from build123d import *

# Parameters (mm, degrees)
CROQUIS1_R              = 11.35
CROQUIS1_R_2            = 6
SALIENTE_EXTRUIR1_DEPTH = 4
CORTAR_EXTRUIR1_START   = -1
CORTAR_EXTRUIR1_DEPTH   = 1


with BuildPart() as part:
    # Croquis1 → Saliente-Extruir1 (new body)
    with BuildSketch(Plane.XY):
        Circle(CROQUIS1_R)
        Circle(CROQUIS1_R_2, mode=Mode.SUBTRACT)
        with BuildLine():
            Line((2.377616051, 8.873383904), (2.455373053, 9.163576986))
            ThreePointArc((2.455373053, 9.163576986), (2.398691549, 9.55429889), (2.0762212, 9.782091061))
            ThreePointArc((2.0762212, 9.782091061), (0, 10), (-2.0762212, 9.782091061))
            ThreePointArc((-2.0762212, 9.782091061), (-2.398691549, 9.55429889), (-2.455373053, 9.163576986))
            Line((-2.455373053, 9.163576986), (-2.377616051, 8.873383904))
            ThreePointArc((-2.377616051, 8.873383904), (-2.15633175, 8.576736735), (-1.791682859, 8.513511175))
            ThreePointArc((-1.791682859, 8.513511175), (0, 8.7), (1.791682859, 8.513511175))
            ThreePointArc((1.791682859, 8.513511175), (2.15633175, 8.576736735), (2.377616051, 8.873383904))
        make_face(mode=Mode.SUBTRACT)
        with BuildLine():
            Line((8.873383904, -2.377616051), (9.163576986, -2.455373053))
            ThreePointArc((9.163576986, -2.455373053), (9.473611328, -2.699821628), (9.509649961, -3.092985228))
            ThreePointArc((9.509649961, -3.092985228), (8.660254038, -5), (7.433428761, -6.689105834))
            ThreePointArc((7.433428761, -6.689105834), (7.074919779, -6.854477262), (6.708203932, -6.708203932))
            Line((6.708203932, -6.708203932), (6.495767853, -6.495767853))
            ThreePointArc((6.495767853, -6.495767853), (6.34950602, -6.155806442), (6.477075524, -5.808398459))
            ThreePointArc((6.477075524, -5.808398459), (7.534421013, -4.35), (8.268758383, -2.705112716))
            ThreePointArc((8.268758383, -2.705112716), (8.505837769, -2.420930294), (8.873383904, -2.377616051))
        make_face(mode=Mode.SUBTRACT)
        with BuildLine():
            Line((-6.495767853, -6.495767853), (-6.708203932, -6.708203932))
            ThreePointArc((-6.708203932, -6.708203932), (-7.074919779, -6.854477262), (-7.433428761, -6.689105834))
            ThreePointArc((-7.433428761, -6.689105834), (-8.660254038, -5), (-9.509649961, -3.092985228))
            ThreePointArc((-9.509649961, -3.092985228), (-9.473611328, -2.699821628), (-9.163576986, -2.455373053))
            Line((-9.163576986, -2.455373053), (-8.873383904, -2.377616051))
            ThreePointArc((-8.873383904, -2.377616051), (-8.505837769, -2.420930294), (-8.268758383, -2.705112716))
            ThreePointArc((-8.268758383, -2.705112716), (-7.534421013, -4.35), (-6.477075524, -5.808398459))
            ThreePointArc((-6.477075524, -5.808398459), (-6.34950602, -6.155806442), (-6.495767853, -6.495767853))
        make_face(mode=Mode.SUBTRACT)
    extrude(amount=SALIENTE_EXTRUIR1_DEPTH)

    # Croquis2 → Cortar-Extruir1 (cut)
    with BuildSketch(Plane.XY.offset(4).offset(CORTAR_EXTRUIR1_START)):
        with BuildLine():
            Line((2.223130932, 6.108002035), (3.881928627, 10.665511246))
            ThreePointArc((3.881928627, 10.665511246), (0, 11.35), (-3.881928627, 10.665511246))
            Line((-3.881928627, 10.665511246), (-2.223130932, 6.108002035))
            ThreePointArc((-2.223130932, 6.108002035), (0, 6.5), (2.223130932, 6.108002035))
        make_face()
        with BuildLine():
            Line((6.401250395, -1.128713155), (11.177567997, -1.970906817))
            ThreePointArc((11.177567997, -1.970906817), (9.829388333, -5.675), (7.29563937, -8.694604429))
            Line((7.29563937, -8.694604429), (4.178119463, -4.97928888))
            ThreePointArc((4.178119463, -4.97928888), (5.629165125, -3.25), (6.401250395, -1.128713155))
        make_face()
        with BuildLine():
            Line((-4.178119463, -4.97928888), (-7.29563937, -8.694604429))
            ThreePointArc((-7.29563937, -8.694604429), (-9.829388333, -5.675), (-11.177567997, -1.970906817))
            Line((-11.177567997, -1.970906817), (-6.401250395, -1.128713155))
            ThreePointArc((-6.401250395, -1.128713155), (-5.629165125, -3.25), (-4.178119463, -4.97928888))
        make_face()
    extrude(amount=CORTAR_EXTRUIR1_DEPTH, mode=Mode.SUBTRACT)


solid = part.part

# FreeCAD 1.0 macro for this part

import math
import FreeCAD as App
import Part
import Sketcher
Q = App.Units.Quantity

doc = App.newDocument("Part")
body = doc.addObject("PartDesign::Body", "Body")

sketch1 = body.newObject("Sketcher::SketchObject", "Sketch")
sketch1.AttachmentSupport = (doc.getObject("XY_Plane"), [""])
sketch1.MapMode = "FlatFace"
sketch1.addGeometry(Part.Circle(App.Vector(0, 0, 0), App.Vector(0, 0, 1), 11.35), False)
sketch1.addGeometry(Part.ArcOfCircle(Part.Circle(App.Vector(-6.85, -6.14, 0), App.Vector(0, 0, 1), 0.5), math.radians(-45), math.radians(42)), False)
sketch1.addGeometry(Part.LineSegment(App.Vector(-6.5, -6.5, 0), App.Vector(-6.71, -6.71, 0)), False)
sketch1.addGeometry(Part.ArcOfCircle(Part.Circle(App.Vector(-7.06, -6.35, 0), App.Vector(0, 0, 1), 0.5), math.radians(-138), math.radians(-45)), False)
sketch1.addGeometry(Part.ArcOfCircle(Part.Circle(App.Vector(0, 0, 0), App.Vector(0, 0, 1), 10), math.radians(-162), math.radians(-138)), False)
sketch1.addGeometry(Part.ArcOfCircle(Part.Circle(App.Vector(-9.03, -2.94, 0), App.Vector(0, 0, 1), 0.5), math.radians(105), math.radians(198)), False)
sketch1.addGeometry(Part.LineSegment(App.Vector(-9.16, -2.46, 0), App.Vector(-8.87, -2.38, 0)), False)
sketch1.addGeometry(Part.ArcOfCircle(Part.Circle(App.Vector(-8.74, -2.86, 0), App.Vector(0, 0, 1), 0.5), math.radians(18), math.radians(105)), False)
sketch1.addGeometry(Part.ArcOfCircle(Part.Circle(App.Vector(0, 0, 0), App.Vector(0, 0, 1), 8.7), math.radians(-162), math.radians(-138)), False)
sketch1.addGeometry(Part.ArcOfCircle(Part.Circle(App.Vector(8.74, -2.86, 0), App.Vector(0, 0, 1), 0.5), math.radians(75), math.radians(162)), False)
sketch1.addGeometry(Part.LineSegment(App.Vector(8.87, -2.38, 0), App.Vector(9.16, -2.46, 0)), False)
sketch1.addGeometry(Part.ArcOfCircle(Part.Circle(App.Vector(9.03, -2.94, 0), App.Vector(0, 0, 1), 0.5), math.radians(-18), math.radians(75)), False)
sketch1.addGeometry(Part.ArcOfCircle(Part.Circle(App.Vector(0, 0, 0), App.Vector(0, 0, 1), 10), math.radians(-42), math.radians(-18)), False)
sketch1.addGeometry(Part.ArcOfCircle(Part.Circle(App.Vector(7.06, -6.35, 0), App.Vector(0, 0, 1), 0.5), math.radians(-135), math.radians(-42)), False)
sketch1.addGeometry(Part.LineSegment(App.Vector(6.71, -6.71, 0), App.Vector(6.5, -6.5, 0)), False)
sketch1.addGeometry(Part.ArcOfCircle(Part.Circle(App.Vector(6.85, -6.14, 0), App.Vector(0, 0, 1), 0.5), math.radians(138), math.radians(225)), False)
sketch1.addGeometry(Part.ArcOfCircle(Part.Circle(App.Vector(0, 0, 0), App.Vector(0, 0, 1), 8.7), math.radians(-42), math.radians(-18)), False)
sketch1.addGeometry(Part.Circle(App.Vector(0, 0, 0), App.Vector(0, 0, 1), 6), False)
sketch1.addGeometry(Part.LineSegment(App.Vector(2.46, 9.16, 0), App.Vector(2.38, 8.87, 0)), False)
sketch1.addGeometry(Part.ArcOfCircle(Part.Circle(App.Vector(1.89, 9, 0), App.Vector(0, 0, 1), 0.5), math.radians(-102), math.radians(-15)), False)
sketch1.addGeometry(Part.ArcOfCircle(Part.Circle(App.Vector(0, 0, 0), App.Vector(0, 0, 1), 8.7), math.radians(78), math.radians(102)), False)
sketch1.addGeometry(Part.ArcOfCircle(Part.Circle(App.Vector(-1.89, 9, 0), App.Vector(0, 0, 1), 0.5), math.radians(-165), math.radians(-78)), False)
sketch1.addGeometry(Part.LineSegment(App.Vector(-2.38, 8.87, 0), App.Vector(-2.46, 9.16, 0)), False)
sketch1.addGeometry(Part.ArcOfCircle(Part.Circle(App.Vector(-1.97, 9.29, 0), App.Vector(0, 0, 1), 0.5), math.radians(102), math.radians(195)), False)
sketch1.addGeometry(Part.ArcOfCircle(Part.Circle(App.Vector(0, 0, 0), App.Vector(0, 0, 1), 10), math.radians(78), math.radians(102)), False)
sketch1.addGeometry(Part.ArcOfCircle(Part.Circle(App.Vector(1.97, 9.29, 0), App.Vector(0, 0, 1), 0.5), math.radians(-15), math.radians(78)), False)
sketch1.addConstraint(Sketcher.Constraint("Tangent", 1, 1, 2, 1))
sketch1.addConstraint(Sketcher.Constraint("Tangent", 2, 2, 3, 2))
sketch1.addConstraint(Sketcher.Constraint("Tangent", 3, 1, 4, 2))
sketch1.addConstraint(Sketcher.Constraint("Tangent", 4, 1, 5, 2))
sketch1.addConstraint(Sketcher.Constraint("Tangent", 5, 1, 6, 1))
sketch1.addConstraint(Sketcher.Constraint("Tangent", 6, 2, 7, 2))
sketch1.addConstraint(Sketcher.Constraint("Tangent", 7, 1, 8, 1))
sketch1.addConstraint(Sketcher.Constraint("Tangent", 8, 2, 1, 2))
sketch1.addConstraint(Sketcher.Constraint("Tangent", 9, 1, 10, 1))
sketch1.addConstraint(Sketcher.Constraint("Tangent", 10, 2, 11, 2))
sketch1.addConstraint(Sketcher.Constraint("Tangent", 11, 1, 12, 2))
sketch1.addConstraint(Sketcher.Constraint("Tangent", 12, 1, 13, 2))
sketch1.addConstraint(Sketcher.Constraint("Tangent", 13, 1, 14, 1))
sketch1.addConstraint(Sketcher.Constraint("Tangent", 14, 2, 15, 2))
sketch1.addConstraint(Sketcher.Constraint("Tangent", 15, 1, 16, 1))
sketch1.addConstraint(Sketcher.Constraint("Tangent", 16, 2, 9, 2))
sketch1.addConstraint(Sketcher.Constraint("Tangent", 18, 2, 19, 2))
sketch1.addConstraint(Sketcher.Constraint("Tangent", 19, 1, 20, 1))
sketch1.addConstraint(Sketcher.Constraint("Tangent", 20, 2, 21, 2))
sketch1.addConstraint(Sketcher.Constraint("Tangent", 21, 1, 22, 1))
sketch1.addConstraint(Sketcher.Constraint("Tangent", 22, 2, 23, 2))
sketch1.addConstraint(Sketcher.Constraint("Tangent", 23, 1, 24, 2))
sketch1.addConstraint(Sketcher.Constraint("Tangent", 24, 1, 25, 2))
sketch1.addConstraint(Sketcher.Constraint("Tangent", 25, 1, 18, 1))
sketch1.addConstraint(Sketcher.Constraint("Coincident", 0, 3, -1, 1))
sketch1.addConstraint(Sketcher.Constraint("Coincident", 4, 3, -1, 1))
sketch1.addConstraint(Sketcher.Constraint("Coincident", 8, 3, -1, 1))
sketch1.addConstraint(Sketcher.Constraint("Coincident", 12, 3, -1, 1))
sketch1.addConstraint(Sketcher.Constraint("Coincident", 16, 3, -1, 1))
sketch1.addConstraint(Sketcher.Constraint("Coincident", 17, 3, -1, 1))
sketch1.addConstraint(Sketcher.Constraint("Coincident", 20, 3, -1, 1))
sketch1.addConstraint(Sketcher.Constraint("Coincident", 24, 3, -1, 1))
sketch1.addConstraint(Sketcher.Constraint("Equal", 1, 3))
sketch1.addConstraint(Sketcher.Constraint("Equal", 3, 5))
sketch1.addConstraint(Sketcher.Constraint("Equal", 5, 7))
sketch1.addConstraint(Sketcher.Constraint("Equal", 7, 9))
sketch1.addConstraint(Sketcher.Constraint("Equal", 9, 11))
sketch1.addConstraint(Sketcher.Constraint("Equal", 4, 12))
sketch1.addConstraint(Sketcher.Constraint("Equal", 11, 13))
sketch1.addConstraint(Sketcher.Constraint("Equal", 13, 15))
sketch1.addConstraint(Sketcher.Constraint("Equal", 8, 16))
sketch1.addConstraint(Sketcher.Constraint("Equal", 15, 19))
sketch1.addConstraint(Sketcher.Constraint("Equal", 16, 20))
sketch1.addConstraint(Sketcher.Constraint("Equal", 19, 21))
sketch1.addConstraint(Sketcher.Constraint("Equal", 21, 23))
sketch1.addConstraint(Sketcher.Constraint("Equal", 12, 24))
sketch1.addConstraint(Sketcher.Constraint("Equal", 23, 25))
sketch1.addConstraint(Sketcher.Constraint("Symmetric", 6, 2, 9, 1, -2))
sketch1.addConstraint(Sketcher.Constraint("Symmetric", 2, 2, 13, 1, -2))
sketch1.addConstraint(Sketcher.Constraint("Symmetric", 18, 2, 21, 1, -2))
sketch1.addConstraint(Sketcher.Constraint("Perpendicular", 2, 14))
sketch1.addConstraint(Sketcher.Constraint("Perpendicular", 10, 18))
sketch1.addConstraint(Sketcher.Constraint("Equal", 2, 6))
sketch1.addConstraint(Sketcher.Constraint("Diameter", 17, 12.0))
sketch1.addConstraint(Sketcher.Constraint("Radius", 4, 10.0))
sketch1.addConstraint(Sketcher.Constraint("Diameter", 0, 22.7))
sketch1.addConstraint(Sketcher.Constraint("Radius", 1, 0.5))
sketch1.addConstraint(Sketcher.Constraint("Radius", 8, 8.7))
sketch1.addConstraint(Sketcher.Constraint("Angle", 6, Q("15 deg")))
sketch1.addConstraint(Sketcher.Constraint("DistanceY", 8, 2, -1, 1, 5.808398))
sketch1.addConstraint(Sketcher.Constraint("DistanceX", 21, 1, 19, 1, 4.169299))
pad1 = body.newObject("PartDesign::Pad", "Pad")
pad1.Profile = sketch1
pad1.Length = 4

sketch2 = body.newObject("Sketcher::SketchObject", "Sketch001")
sketch2.AttachmentSupport = (doc.getObject("XY_Plane"), [""])
sketch2.MapMode = "FlatFace"
sketch2.AttachmentOffset = App.Placement(App.Vector(0, 0, 3), App.Rotation())
sketch2.addGeometry(Part.LineSegment(App.Vector(2.2, 6.1, 0), App.Vector(3.9, 10.7, 0)), False)
sketch2.addGeometry(Part.ArcOfCircle(Part.Circle(App.Vector(0, 0, 0), App.Vector(0, 0, 1), 11.4), math.radians(70), math.radians(110)), False)
sketch2.addGeometry(Part.LineSegment(App.Vector(-3.9, 10.7, 0), App.Vector(-2.2, 6.1, 0)), False)
sketch2.addGeometry(Part.ArcOfCircle(Part.Circle(App.Vector(0, 0, 0), App.Vector(0, 0, 1), 6.5), math.radians(70), math.radians(110)), False)
sketch2.addGeometry(Part.LineSegment(App.Vector(11.2, -2, 0), App.Vector(6.4, -1.1, 0)), False)
sketch2.addGeometry(Part.ArcOfCircle(Part.Circle(App.Vector(0, 0, 0), App.Vector(0, 0, 1), 6.5), math.radians(-50), math.radians(-10)), False)
sketch2.addGeometry(Part.LineSegment(App.Vector(4.2, -5, 0), App.Vector(7.3, -8.7, 0)), False)
sketch2.addGeometry(Part.ArcOfCircle(Part.Circle(App.Vector(0, 0, 0), App.Vector(0, 0, 1), 11.3), math.radians(-50), math.radians(-10)), False)
sketch2.addGeometry(Part.LineSegment(App.Vector(-7.3, -8.7, 0), App.Vector(-4.2, -5, 0)), False)
sketch2.addGeometry(Part.ArcOfCircle(Part.Circle(App.Vector(0, 0, 0), App.Vector(0, 0, 1), 6.5), math.radians(-170), math.radians(-130)), False)
sketch2.addGeometry(Part.LineSegment(App.Vector(-6.4, -1.1, 0), App.Vector(-11.2, -2, 0)), False)
sketch2.addGeometry(Part.ArcOfCircle(Part.Circle(App.Vector(0, 0, 0), App.Vector(0, 0, 1), 11.3), math.radians(-170), math.radians(-130)), False)
sketch2.addConstraint(Sketcher.Constraint("Coincident", 0, 2, 1, 1))
sketch2.addConstraint(Sketcher.Constraint("Coincident", 1, 2, 2, 1))
sketch2.addConstraint(Sketcher.Constraint("Coincident", 2, 2, 3, 2))
sketch2.addConstraint(Sketcher.Constraint("Coincident", 3, 1, 0, 1))
sketch2.addConstraint(Sketcher.Constraint("Coincident", 4, 2, 5, 2))
sketch2.addConstraint(Sketcher.Constraint("Coincident", 5, 1, 6, 1))
sketch2.addConstraint(Sketcher.Constraint("Coincident", 6, 2, 7, 1))
sketch2.addConstraint(Sketcher.Constraint("Coincident", 7, 2, 4, 1))
sketch2.addConstraint(Sketcher.Constraint("Coincident", 8, 2, 9, 2))
sketch2.addConstraint(Sketcher.Constraint("Coincident", 9, 1, 10, 1))
sketch2.addConstraint(Sketcher.Constraint("Coincident", 10, 2, 11, 1))
sketch2.addConstraint(Sketcher.Constraint("Coincident", 11, 2, 8, 1))
sketch2.addConstraint(Sketcher.Constraint("Coincident", 1, 3, -1, 1))
sketch2.addConstraint(Sketcher.Constraint("Coincident", 3, 3, -1, 1))
sketch2.addConstraint(Sketcher.Constraint("Coincident", 5, 3, -1, 1))
sketch2.addConstraint(Sketcher.Constraint("Coincident", 7, 3, -1, 1))
sketch2.addConstraint(Sketcher.Constraint("Coincident", 9, 3, -1, 1))
sketch2.addConstraint(Sketcher.Constraint("Coincident", 11, 3, -1, 1))
sketch2.addConstraint(Sketcher.Constraint("Equal", 3, 5))
sketch2.addConstraint(Sketcher.Constraint("Equal", 1, 7))
sketch2.addConstraint(Sketcher.Constraint("Equal", 5, 9))
sketch2.addConstraint(Sketcher.Constraint("Equal", 7, 11))
sketch2.addConstraint(Sketcher.Constraint("Horizontal", 0, 2, 1, 2))
sketch2.addConstraint(Sketcher.Constraint("Horizontal", 2, 2, 3, 1))
sketch2.addConstraint(Sketcher.Constraint("Horizontal", 5, 1, 8, 2))
sketch2.addConstraint(Sketcher.Constraint("Horizontal", 4, 2, 9, 1))
sketch2.addConstraint(Sketcher.Constraint("Horizontal", 7, 2, 10, 2))
sketch2.addConstraint(Sketcher.Constraint("Horizontal", 6, 2, 11, 2))
sketch2.addConstraint(Sketcher.Constraint("Radius", 3, 6.5))
sketch2.addConstraint(Sketcher.Constraint("Angle", 0, Q("70 deg")))
sketch2.addConstraint(Sketcher.Constraint("Angle", 4, Q("170 deg")))
sketch2.addConstraint(Sketcher.Constraint("Angle", 6, Q("-50 deg")))
sketch2.addConstraint(Sketcher.Constraint("Radius", 1, 11.35))
sketch2.addConstraint(Sketcher.Constraint("DistanceX", -1, 1, 0, 2, 3.881929))
sketch2.addConstraint(Sketcher.Constraint("DistanceX", -1, 1, 4, 2, 6.40125))
sketch2.addConstraint(Sketcher.Constraint("DistanceX", -1, 1, 5, 1, 4.178119))
pocket1 = body.newObject("PartDesign::Pocket", "Pocket")
pocket1.Profile = sketch2
pocket1.Length = 1
pocket1.Reversed = True

doc.recompute()
